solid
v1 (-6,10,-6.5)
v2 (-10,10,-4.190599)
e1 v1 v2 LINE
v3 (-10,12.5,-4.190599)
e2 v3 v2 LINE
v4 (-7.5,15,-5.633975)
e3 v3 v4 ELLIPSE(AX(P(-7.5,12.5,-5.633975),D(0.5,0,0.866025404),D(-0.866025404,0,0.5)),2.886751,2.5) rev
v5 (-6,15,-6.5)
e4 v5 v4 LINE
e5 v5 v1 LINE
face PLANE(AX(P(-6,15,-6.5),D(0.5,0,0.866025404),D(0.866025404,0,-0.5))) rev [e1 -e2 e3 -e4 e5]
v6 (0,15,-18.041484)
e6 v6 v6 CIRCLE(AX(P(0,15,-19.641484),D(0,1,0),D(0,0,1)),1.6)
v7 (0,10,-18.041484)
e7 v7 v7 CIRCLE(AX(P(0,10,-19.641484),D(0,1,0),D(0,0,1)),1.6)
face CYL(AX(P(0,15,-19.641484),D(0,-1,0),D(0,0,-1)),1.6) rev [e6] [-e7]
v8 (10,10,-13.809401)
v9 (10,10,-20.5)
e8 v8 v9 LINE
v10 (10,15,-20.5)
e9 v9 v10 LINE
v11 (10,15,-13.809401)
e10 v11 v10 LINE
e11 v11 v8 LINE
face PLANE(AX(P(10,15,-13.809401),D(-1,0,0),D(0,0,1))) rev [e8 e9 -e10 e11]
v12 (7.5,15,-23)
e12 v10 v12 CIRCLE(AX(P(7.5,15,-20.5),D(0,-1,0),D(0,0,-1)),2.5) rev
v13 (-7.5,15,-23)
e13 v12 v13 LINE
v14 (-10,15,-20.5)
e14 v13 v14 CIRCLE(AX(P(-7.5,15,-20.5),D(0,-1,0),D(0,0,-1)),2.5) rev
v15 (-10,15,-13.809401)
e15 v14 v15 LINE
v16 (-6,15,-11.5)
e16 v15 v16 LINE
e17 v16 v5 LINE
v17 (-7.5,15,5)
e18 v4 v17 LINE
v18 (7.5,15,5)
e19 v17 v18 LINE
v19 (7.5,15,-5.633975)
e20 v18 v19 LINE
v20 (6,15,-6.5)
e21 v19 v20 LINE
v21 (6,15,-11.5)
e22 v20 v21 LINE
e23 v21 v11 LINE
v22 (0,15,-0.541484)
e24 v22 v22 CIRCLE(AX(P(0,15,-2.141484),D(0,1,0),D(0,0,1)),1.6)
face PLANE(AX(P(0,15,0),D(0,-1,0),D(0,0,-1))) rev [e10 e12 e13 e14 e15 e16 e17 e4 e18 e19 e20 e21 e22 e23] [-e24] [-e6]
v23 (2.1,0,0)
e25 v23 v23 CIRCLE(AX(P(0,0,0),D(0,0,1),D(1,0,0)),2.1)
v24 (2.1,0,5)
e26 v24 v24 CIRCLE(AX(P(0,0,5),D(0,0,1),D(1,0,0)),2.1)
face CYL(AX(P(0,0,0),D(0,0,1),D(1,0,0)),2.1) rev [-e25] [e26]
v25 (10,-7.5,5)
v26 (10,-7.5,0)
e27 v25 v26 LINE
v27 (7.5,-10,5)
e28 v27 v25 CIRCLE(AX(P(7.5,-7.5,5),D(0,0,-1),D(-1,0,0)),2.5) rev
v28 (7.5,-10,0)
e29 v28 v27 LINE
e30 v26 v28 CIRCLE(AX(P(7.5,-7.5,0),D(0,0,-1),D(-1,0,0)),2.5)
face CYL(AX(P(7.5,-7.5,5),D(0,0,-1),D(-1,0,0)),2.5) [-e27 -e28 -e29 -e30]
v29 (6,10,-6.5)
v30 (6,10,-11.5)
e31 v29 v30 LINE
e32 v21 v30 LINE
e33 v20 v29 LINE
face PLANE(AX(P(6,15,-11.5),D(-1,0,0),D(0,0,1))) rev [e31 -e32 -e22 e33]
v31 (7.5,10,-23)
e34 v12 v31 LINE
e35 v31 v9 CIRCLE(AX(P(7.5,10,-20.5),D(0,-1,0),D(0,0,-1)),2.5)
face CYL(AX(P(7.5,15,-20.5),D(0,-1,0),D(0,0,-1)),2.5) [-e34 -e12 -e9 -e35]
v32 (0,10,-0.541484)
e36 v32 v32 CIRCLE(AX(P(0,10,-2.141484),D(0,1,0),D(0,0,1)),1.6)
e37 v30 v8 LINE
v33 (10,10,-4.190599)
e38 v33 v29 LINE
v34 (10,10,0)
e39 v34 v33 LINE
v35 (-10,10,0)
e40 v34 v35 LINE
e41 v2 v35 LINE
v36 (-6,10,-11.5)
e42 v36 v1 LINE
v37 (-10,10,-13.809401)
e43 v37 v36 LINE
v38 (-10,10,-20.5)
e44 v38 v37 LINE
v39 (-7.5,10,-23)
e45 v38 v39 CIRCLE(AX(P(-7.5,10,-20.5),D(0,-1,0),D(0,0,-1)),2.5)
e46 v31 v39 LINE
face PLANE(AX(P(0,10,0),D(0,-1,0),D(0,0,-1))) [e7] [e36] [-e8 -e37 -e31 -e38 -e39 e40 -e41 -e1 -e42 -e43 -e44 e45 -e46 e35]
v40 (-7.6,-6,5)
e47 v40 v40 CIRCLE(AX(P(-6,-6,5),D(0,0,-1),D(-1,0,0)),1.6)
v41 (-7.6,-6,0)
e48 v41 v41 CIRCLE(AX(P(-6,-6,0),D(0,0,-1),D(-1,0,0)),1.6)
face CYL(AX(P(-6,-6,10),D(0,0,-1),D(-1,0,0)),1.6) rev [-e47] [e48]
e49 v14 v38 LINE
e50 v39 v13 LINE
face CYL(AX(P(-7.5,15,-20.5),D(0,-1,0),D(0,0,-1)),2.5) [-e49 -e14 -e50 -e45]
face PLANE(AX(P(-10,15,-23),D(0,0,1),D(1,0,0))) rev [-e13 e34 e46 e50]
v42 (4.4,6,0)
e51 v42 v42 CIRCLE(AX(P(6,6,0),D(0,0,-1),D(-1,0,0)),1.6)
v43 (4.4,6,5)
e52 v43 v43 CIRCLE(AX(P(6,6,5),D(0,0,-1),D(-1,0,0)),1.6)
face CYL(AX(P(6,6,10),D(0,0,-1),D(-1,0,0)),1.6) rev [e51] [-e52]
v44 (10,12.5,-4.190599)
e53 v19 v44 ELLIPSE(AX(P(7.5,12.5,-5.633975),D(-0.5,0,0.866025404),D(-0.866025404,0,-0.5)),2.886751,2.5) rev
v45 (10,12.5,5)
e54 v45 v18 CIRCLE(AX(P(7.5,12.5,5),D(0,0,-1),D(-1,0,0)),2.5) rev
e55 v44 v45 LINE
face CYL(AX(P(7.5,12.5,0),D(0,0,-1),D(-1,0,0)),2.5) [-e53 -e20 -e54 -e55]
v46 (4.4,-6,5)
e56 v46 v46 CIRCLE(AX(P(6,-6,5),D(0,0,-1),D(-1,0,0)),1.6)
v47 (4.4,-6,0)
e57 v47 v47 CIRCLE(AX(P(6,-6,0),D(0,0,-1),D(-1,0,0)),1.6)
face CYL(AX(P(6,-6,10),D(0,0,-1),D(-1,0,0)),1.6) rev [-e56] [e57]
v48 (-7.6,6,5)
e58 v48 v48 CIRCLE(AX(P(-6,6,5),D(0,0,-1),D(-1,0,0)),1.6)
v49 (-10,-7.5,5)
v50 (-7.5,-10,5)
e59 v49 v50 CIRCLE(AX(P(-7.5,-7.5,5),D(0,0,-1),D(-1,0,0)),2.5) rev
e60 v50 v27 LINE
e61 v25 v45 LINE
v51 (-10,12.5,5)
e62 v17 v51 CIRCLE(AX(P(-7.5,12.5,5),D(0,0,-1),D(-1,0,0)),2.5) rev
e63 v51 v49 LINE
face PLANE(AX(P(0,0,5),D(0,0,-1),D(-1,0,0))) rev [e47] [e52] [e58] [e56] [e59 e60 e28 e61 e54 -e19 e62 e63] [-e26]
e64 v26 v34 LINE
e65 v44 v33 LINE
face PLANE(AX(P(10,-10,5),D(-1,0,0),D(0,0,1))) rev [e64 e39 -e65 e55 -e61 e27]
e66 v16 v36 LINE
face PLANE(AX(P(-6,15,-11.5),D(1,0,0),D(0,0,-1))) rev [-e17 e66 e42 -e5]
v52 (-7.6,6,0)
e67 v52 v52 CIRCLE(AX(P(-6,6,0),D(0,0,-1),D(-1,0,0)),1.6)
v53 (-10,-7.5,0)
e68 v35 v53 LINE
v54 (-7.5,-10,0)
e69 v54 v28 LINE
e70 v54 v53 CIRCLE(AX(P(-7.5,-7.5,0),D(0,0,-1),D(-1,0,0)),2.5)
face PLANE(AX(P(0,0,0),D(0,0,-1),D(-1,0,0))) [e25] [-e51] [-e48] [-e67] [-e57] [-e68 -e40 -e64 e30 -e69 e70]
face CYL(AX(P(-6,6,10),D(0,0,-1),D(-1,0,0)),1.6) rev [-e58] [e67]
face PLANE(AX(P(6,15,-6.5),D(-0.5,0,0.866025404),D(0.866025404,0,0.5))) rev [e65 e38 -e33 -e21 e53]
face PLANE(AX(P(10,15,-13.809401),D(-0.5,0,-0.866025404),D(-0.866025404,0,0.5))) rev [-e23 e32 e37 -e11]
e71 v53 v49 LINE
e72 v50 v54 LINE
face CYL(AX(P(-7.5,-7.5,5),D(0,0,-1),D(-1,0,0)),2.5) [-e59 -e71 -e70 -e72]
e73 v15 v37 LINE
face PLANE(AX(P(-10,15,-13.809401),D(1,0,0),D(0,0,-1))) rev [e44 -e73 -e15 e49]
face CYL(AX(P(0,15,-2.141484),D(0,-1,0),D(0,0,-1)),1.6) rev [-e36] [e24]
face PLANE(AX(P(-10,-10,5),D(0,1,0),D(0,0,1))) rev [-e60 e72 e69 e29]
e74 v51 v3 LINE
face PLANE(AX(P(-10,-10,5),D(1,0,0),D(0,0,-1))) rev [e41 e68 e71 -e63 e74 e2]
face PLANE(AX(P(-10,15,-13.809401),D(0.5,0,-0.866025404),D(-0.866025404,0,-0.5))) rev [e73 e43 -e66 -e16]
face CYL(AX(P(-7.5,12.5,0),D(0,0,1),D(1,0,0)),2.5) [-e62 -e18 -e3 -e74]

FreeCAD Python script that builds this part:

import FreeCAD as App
import Part
import Sketcher

V = App.Vector
Q = App.Units.Quantity


def edges_at(feature, points):
    """Names of the edges that pass closest to the given points."""
    edges = feature.Shape.Edges
    near = lambda p: min(range(len(edges)), key=lambda i: edges[i].distToShape(Part.Vertex(*p))[0])
    return sorted({f"Edge{near(p) + 1}" for p in points})

doc = App.newDocument("Part")
body = doc.addObject("PartDesign::Body", "Body")

# Sketch on XY plane
sketch1 = body.newObject("Sketcher::SketchObject", "Sketch")
sketch1.AttachmentSupport = (doc.getObject("XY_Plane"), [""])
sketch1.MapMode = "FlatFace"
sketch1.addGeometry([
    Part.LineSegment(V(-10, 10, 0), V(-10, -10, 0)),
    Part.LineSegment(V(-10, -10, 0), V(10, -10, 0)),
    Part.LineSegment(V(10, -10, 0), V(10, 10, 0)),
    Part.LineSegment(V(10, 10, 0), V(-10, 10, 0)),
], False)
sketch1.addConstraint([
    Sketcher.Constraint("Coincident", 0, 2, 1, 1),
    Sketcher.Constraint("Coincident", 1, 2, 2, 1),
    Sketcher.Constraint("Coincident", 2, 2, 3, 1),
    Sketcher.Constraint("Coincident", 3, 2, 0, 1),
    Sketcher.Constraint("Vertical", 0),
    Sketcher.Constraint("Horizontal", 1),
    Sketcher.Constraint("Vertical", 2),
    Sketcher.Constraint("Horizontal", 3),
    Sketcher.Constraint("Symmetric", 0, 2, 2, 2, -1, 1),
    Sketcher.Constraint("Equal", 3, 0),
    Sketcher.Constraint("DistanceX", 1, 1, 1, 2, Q("20 mm")),
])
pad1 = body.newObject("PartDesign::Pad", "Pad")
pad1.Profile = sketch1
pad1.Length = 5

# Sketch on XY plane
sketch2 = body.newObject("Sketcher::SketchObject", "Sketch001")
sketch2.AttachmentSupport = (doc.getObject("XY_Plane"), [""])
sketch2.MapMode = "FlatFace"
sketch2.AttachmentOffset = App.Placement(V(0, 0, 5), App.Rotation())
sketch2.addGeometry(Part.Circle(V(0, 0, 0), V(0, 0, 1), 2.1), False)
sketch2.addConstraint([
    Sketcher.Constraint("Coincident", 0, 3, -1, 1),
    Sketcher.Constraint("Diameter", 0, Q("4.2 mm")),
])
pocket1 = body.newObject("PartDesign::Pocket", "Pocket")
pocket1.Profile = sketch2
pocket1.Length = 5
doc.recompute()

fillet = body.newObject("PartDesign::Fillet", "Fillet")
fillet.Base = (pocket1, edges_at(pocket1, [(10, -10, 2.5), (-10, -10, 2.5)]))
fillet.Radius = 2.5

# Sketch on XZ plane
sketch3 = body.newObject("Sketcher::SketchObject", "Sketch002")
sketch3.AttachmentSupport = (doc.getObject("XZ_Plane"), [""])
sketch3.MapMode = "FlatFace"
sketch3.AttachmentOffset = App.Placement(V(0, 0, -10), App.Rotation())
sketch3.addGeometry([
    Part.LineSegment(V(-10, 5, 0), V(10, 5, 0)),  # 0
    Part.LineSegment(V(10, 5, 0), V(10, -4.2, 0)),  # 1
    Part.LineSegment(V(10, -4.2, 0), V(6, -6.5, 0)),  # 2
    Part.LineSegment(V(6, -6.5, 0), V(6, -11.5, 0)),  # 3
    Part.LineSegment(V(6, -11.5, 0), V(10, -13.8, 0)),  # 4
    Part.LineSegment(V(10, -13.8, 0), V(10, -23, 0)),  # 5
    Part.LineSegment(V(10, -23, 0), V(-10, -23, 0)),  # 6
    Part.LineSegment(V(-10, -23, 0), V(-10, -13.8, 0)),  # 7
    Part.LineSegment(V(-10, -13.8, 0), V(-6, -11.5, 0)),  # 8
    Part.LineSegment(V(-6, -11.5, 0), V(-6, -6.5, 0)),  # 9
    Part.LineSegment(V(-6, -6.5, 0), V(-10, -4.2, 0)),  # 10
    Part.LineSegment(V(-10, -4.2, 0), V(-10, 5, 0)),  # 11
    Part.Circle(V(0, -2.1, 0), V(0, 0, 1), 1.6),  # 12
    Part.Circle(V(0, -19.6, 0), V(0, 0, 1), 1.6),  # 13
], False)
sketch3.addConstraint([
    Sketcher.Constraint("Coincident", 0, 2, 1, 1),
    Sketcher.Constraint("Coincident", 1, 2, 2, 1),
    Sketcher.Constraint("Coincident", 2, 2, 3, 1),
    Sketcher.Constraint("Coincident", 3, 2, 4, 1),
    Sketcher.Constraint("Coincident", 4, 2, 5, 1),
    Sketcher.Constraint("Coincident", 5, 2, 6, 1),
    Sketcher.Constraint("Coincident", 6, 2, 7, 1),
    Sketcher.Constraint("Coincident", 7, 2, 8, 1),
    Sketcher.Constraint("Coincident", 8, 2, 9, 1),
    Sketcher.Constraint("Coincident", 9, 2, 10, 1),
    Sketcher.Constraint("Coincident", 10, 2, 11, 1),
    Sketcher.Constraint("Coincident", 11, 2, 0, 1),
    Sketcher.Constraint("Horizontal", 0),
    Sketcher.Constraint("Vertical", 1),
    Sketcher.Constraint("Vertical", 3),
    Sketcher.Constraint("Vertical", 5),
    Sketcher.Constraint("Horizontal", 6),
    Sketcher.Constraint("Vertical", 7),
    Sketcher.Constraint("Vertical", 9),
    Sketcher.Constraint("Vertical", 11),
    Sketcher.Constraint("Equal", 12, 13),
    Sketcher.Constraint("Symmetric", 4, 2, 7, 2, -2),
    Sketcher.Constraint("Symmetric", 3, 2, 8, 2, -2),
    Sketcher.Constraint("Symmetric", 1, 2, 10, 2, -2),
    Sketcher.Constraint("PointOnObject", 12, 3, -2),
    Sketcher.Constraint("PointOnObject", 13, 3, -2),
    Sketcher.Constraint("Parallel", 2, 8),
    Sketcher.Constraint("Parallel", 4, 10),
    Sketcher.Constraint("Vertical", 1, 2, 4, 2),
    Sketcher.Constraint("Equal", 1, 5),
    Sketcher.Constraint("Diameter", 12, Q("3.2 mm")),
    Sketcher.Constraint("DistanceX", 0, 1, 0, 2, Q("20 mm")),
    Sketcher.Constraint("DistanceY", 3, 2, 3, 1, Q("5 mm")),
    Sketcher.Constraint("Angle", 2, Q("-150 deg")),
    Sketcher.Constraint("DistanceY", -1, 1, 0, 2, Q("5 mm")),
    Sketcher.Constraint("DistanceX", -1, 1, 2, 2, Q("6 mm")),
    Sketcher.Constraint("DistanceY", 5, 2, -1, 1, Q("23 mm")),
    Sketcher.Constraint("DistanceY", 13, 3, 12, 3, Q("17.5 mm")),
    Sketcher.Constraint("DistanceY", 12, 3, -1, 1, Q("2.141484 mm")),
])
pad2 = body.newObject("PartDesign::Pad", "Pad001")
pad2.Profile = sketch3
pad2.Length = 5
pad2.Reversed = True
doc.recompute()

fillet2 = body.newObject("PartDesign::Fillet", "Fillet001")
fillet2.Base = (pad2, edges_at(pad2, [
    (-10, 15, 0.405),
    (10, 15, 0.405),
    (10, 12.5, -23),
    (-10, 12.5, -23),
]))
fillet2.Radius = 2.5

# Sketch on XY plane
sketch4 = body.newObject("Sketcher::SketchObject", "Sketch003")
sketch4.AttachmentSupport = (doc.getObject("XY_Plane"), [""])
sketch4.MapMode = "FlatFace"
sketch4.addGeometry([
    Part.Circle(V(6, 6, 0), V(0, 0, 1), 1.6),
    Part.Circle(V(-6, 6, 0), V(0, 0, 1), 1.6),
    Part.Circle(V(-6, -6, 0), V(0, 0, 1), 1.6),
    Part.Circle(V(6, -6, 0), V(0, 0, 1), 1.6),
], False)
sketch4.addConstraint([
    Sketcher.Constraint("Equal", 0, 1),
    Sketcher.Constraint("Equal", 1, 2),
    Sketcher.Constraint("Equal", 2, 3),
    Sketcher.Constraint("Symmetric", 0, 3, 2, 3, -1, 1),
    Sketcher.Constraint("Symmetric", 1, 3, 3, 3, -1, 1),
    Sketcher.Constraint("Symmetric", 0, 3, 1, 3, -2),
    Sketcher.Constraint("Diameter", 0, Q("3.2 mm")),
    Sketcher.Constraint("DistanceX", -1, 1, 0, 3, Q("6 mm")),
    Sketcher.Constraint("DistanceY", -1, 1, 0, 3, Q("6 mm")),
])
pocket2 = body.newObject("PartDesign::Pocket", "Pocket001")
pocket2.Profile = sketch4
pocket2.Length = 10
pocket2.Reversed = True

doc.recompute()
